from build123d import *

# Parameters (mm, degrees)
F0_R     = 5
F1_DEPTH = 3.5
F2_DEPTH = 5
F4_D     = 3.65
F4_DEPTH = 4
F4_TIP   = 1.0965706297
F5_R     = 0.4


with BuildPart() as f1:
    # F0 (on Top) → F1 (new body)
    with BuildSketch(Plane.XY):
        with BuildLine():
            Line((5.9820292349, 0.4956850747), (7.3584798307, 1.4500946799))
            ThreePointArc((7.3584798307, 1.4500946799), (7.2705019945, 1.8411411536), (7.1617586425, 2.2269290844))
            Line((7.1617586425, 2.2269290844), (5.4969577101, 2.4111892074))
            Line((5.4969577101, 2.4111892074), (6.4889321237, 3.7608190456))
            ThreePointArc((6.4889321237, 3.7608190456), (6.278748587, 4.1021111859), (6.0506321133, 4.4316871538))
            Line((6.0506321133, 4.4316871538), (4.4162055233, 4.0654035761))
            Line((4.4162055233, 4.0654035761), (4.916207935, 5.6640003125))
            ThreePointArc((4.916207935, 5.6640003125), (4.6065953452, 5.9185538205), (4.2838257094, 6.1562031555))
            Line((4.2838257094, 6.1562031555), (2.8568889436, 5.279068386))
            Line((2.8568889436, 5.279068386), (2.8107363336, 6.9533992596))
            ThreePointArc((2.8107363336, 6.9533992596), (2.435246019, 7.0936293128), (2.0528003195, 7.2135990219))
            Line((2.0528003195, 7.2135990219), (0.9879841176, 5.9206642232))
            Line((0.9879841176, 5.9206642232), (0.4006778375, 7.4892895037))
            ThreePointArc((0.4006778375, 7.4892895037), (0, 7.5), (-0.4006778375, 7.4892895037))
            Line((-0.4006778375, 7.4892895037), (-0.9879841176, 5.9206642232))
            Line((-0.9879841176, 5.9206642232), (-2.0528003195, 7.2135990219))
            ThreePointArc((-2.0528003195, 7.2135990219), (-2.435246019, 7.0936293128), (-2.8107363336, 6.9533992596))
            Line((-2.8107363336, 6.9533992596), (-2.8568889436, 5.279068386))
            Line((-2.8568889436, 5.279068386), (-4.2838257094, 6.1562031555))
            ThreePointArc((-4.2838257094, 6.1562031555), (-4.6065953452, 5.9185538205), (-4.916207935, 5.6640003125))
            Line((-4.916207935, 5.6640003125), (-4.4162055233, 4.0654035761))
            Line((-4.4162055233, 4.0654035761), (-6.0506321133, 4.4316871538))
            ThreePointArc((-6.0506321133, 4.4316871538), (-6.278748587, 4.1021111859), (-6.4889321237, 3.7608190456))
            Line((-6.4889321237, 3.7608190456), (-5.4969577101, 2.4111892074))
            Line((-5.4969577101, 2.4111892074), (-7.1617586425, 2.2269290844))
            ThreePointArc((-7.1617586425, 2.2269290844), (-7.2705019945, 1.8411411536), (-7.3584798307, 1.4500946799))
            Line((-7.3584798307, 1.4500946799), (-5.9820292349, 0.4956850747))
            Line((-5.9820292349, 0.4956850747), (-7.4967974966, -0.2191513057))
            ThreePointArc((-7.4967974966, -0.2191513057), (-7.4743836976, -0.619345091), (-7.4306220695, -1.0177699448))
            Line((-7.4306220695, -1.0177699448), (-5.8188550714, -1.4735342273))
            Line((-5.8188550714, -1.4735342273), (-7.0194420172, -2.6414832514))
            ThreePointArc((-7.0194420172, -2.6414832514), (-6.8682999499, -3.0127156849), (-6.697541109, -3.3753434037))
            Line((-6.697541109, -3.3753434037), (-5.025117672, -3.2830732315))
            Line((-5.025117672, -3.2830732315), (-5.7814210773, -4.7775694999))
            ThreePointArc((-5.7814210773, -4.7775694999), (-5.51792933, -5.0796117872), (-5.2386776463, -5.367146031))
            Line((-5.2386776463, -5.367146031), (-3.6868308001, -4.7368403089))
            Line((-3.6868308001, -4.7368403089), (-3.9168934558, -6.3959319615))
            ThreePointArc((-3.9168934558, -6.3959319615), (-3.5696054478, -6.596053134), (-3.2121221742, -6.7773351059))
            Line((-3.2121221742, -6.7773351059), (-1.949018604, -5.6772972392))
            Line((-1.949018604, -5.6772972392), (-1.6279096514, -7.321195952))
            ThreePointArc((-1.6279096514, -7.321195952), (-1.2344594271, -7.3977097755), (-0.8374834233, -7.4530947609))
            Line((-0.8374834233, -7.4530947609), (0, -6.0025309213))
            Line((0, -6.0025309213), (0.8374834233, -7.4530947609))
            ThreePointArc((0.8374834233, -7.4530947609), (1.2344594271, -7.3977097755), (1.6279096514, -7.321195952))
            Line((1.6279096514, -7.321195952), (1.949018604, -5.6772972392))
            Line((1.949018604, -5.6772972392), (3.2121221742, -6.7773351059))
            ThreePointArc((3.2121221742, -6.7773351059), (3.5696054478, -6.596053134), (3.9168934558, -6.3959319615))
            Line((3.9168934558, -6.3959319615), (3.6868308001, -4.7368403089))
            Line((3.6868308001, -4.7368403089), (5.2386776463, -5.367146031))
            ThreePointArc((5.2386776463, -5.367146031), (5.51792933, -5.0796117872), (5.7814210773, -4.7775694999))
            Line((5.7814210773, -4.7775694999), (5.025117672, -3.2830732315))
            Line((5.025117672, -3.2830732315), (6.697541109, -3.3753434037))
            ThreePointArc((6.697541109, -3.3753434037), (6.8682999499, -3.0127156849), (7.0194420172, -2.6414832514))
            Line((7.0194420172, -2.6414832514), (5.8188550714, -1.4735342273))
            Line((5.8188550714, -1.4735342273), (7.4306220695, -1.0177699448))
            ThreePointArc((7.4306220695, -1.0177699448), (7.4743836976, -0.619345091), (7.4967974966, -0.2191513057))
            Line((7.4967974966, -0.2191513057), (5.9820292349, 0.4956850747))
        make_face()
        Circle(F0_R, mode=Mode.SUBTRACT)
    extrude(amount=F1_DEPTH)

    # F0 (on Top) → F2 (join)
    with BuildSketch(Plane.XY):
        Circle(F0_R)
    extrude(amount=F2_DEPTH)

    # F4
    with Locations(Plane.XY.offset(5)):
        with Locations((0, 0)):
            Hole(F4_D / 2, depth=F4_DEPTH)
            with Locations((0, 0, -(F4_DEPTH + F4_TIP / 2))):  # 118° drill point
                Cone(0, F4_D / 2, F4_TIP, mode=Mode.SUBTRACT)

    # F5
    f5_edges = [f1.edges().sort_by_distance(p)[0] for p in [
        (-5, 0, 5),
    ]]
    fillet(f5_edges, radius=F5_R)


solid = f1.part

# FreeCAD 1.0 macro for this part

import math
import FreeCAD as App
import Part
import Sketcher

V = App.Vector
Q = App.Units.Quantity


def edges_at(feature, points):
    """Names of the edges that pass closest to the given points."""
    edges = feature.Shape.Edges
    near = lambda p: min(range(len(edges)), key=lambda i: edges[i].distToShape(Part.Vertex(*p))[0])
    return sorted({f"Edge{near(p) + 1}" for p in points})

doc = App.newDocument("Part")
body = doc.addObject("PartDesign::Body", "Body")

sketch1 = doc.addObject("Sketcher::SketchObject", "Sketch")
body.addObject(sketch1)
sketch1.AttachmentSupport = (doc.XY_Plane, [""])
sketch1.MapMode = "FlatFace"
sketch1.addGeometry(Part.LineSegment(V(5.982029, 0.495685, 0), V(7.35848, 1.450095, 0)), False)
sketch1.addGeometry(Part.ArcOfCircle(Part.Circle(V(0, 0, 0), V(0, 0, 1), 7.5), math.radians(11.148115), math.radians(17.272937)), False)
sketch1.addGeometry(Part.LineSegment(V(7.161759, 2.226929, 0), V(5.496958, 2.411189, 0)), False)
sketch1.addGeometry(Part.LineSegment(V(5.496958, 2.411189, 0), V(6.488932, 3.760819, 0)), False)
sketch1.addGeometry(Part.ArcOfCircle(Part.Circle(V(0, 0, 0), V(0, 0, 1), 7.5), math.radians(30.095484), math.radians(36.220306)), False)
sketch1.addGeometry(Part.LineSegment(V(6.050632, 4.431687, 0), V(4.416206, 4.065404, 0)), False)
sketch1.addGeometry(Part.LineSegment(V(4.416206, 4.065404, 0), V(4.916208, 5.664, 0)), False)
sketch1.addGeometry(Part.ArcOfCircle(Part.Circle(V(0, 0, 0), V(0, 0, 1), 7.5), math.radians(49.042852), math.radians(55.167674)), False)
sketch1.addGeometry(Part.LineSegment(V(4.283826, 6.156203, 0), V(2.856889, 5.279068, 0)), False)
sketch1.addGeometry(Part.LineSegment(V(2.856889, 5.279068, 0), V(2.810736, 6.953399, 0)), False)
sketch1.addGeometry(Part.ArcOfCircle(Part.Circle(V(0, 0, 0), V(0, 0, 1), 7.5), math.radians(67.99022), math.radians(74.115043)), False)
sketch1.addGeometry(Part.LineSegment(V(2.0528, 7.213599, 0), V(0.987984, 5.920664, 0)), False)
sketch1.addGeometry(Part.LineSegment(V(0.987984, 5.920664, 0), V(0.400678, 7.48929, 0)), False)
sketch1.addGeometry(Part.ArcOfCircle(Part.Circle(V(0, 0, 0), V(0, 0, 1), 7.5), math.radians(86.937589), math.radians(93.062411)), False)
sketch1.addGeometry(Part.LineSegment(V(-0.400678, 7.48929, 0), V(-0.987984, 5.920664, 0)), False)
sketch1.addGeometry(Part.LineSegment(V(-0.987984, 5.920664, 0), V(-2.0528, 7.213599, 0)), False)
sketch1.addGeometry(Part.ArcOfCircle(Part.Circle(V(0, 0, 0), V(0, 0, 1), 7.5), math.radians(105.884957), math.radians(112.00978)), False)
sketch1.addGeometry(Part.LineSegment(V(-2.810736, 6.953399, 0), V(-2.856889, 5.279068, 0)), False)
sketch1.addGeometry(Part.LineSegment(V(-2.856889, 5.279068, 0), V(-4.283826, 6.156203, 0)), False)
sketch1.addGeometry(Part.ArcOfCircle(Part.Circle(V(0, 0, 0), V(0, 0, 1), 7.5), math.radians(124.832326), math.radians(130.957148)), False)
sketch1.addGeometry(Part.LineSegment(V(-4.916208, 5.664, 0), V(-4.416206, 4.065404, 0)), False)
sketch1.addGeometry(Part.LineSegment(V(-4.416206, 4.065404, 0), V(-6.050632, 4.431687, 0)), False)
sketch1.addGeometry(Part.ArcOfCircle(Part.Circle(V(0, 0, 0), V(0, 0, 1), 7.5), math.radians(143.779694), math.radians(149.904516)), False)
sketch1.addGeometry(Part.LineSegment(V(-6.488932, 3.760819, 0), V(-5.496958, 2.411189, 0)), False)
sketch1.addGeometry(Part.LineSegment(V(-5.496958, 2.411189, 0), V(-7.161759, 2.226929, 0)), False)
sketch1.addGeometry(Part.ArcOfCircle(Part.Circle(V(0, 0, 0), V(0, 0, 1), 7.5), math.radians(162.727063), math.radians(168.851885)), False)
sketch1.addGeometry(Part.LineSegment(V(-7.35848, 1.450095, 0), V(-5.982029, 0.495685, 0)), False)
sketch1.addGeometry(Part.LineSegment(V(-5.982029, 0.495685, 0), V(-7.496797, -0.219151, 0)), False)
sketch1.addGeometry(Part.ArcOfCircle(Part.Circle(V(0, 0, 0), V(0, 0, 1), 7.5), math.radians(-178.325569), math.radians(-172.200747)), False)
sketch1.addGeometry(Part.LineSegment(V(-7.430622, -1.01777, 0), V(-5.818855, -1.473534, 0)), False)
sketch1.addGeometry(Part.LineSegment(V(-5.818855, -1.473534, 0), V(-7.019442, -2.641483, 0)), False)
sketch1.addGeometry(Part.ArcOfCircle(Part.Circle(V(0, 0, 0), V(0, 0, 1), 7.5), math.radians(-159.378201), math.radians(-153.253378)), False)
sketch1.addGeometry(Part.LineSegment(V(-6.697541, -3.375343, 0), V(-5.025118, -3.283073, 0)), False)
sketch1.addGeometry(Part.LineSegment(V(-5.025118, -3.283073, 0), V(-5.781421, -4.77757, 0)), False)
sketch1.addGeometry(Part.ArcOfCircle(Part.Circle(V(0, 0, 0), V(0, 0, 1), 7.5), math.radians(-140.430832), math.radians(-134.30601)), False)
sketch1.addGeometry(Part.LineSegment(V(-5.238678, -5.367146, 0), V(-3.686831, -4.73684, 0)), False)
sketch1.addGeometry(Part.LineSegment(V(-3.686831, -4.73684, 0), V(-3.916893, -6.395932, 0)), False)
sketch1.addGeometry(Part.ArcOfCircle(Part.Circle(V(0, 0, 0), V(0, 0, 1), 7.5), math.radians(-121.483464), math.radians(-115.358642)), False)
sketch1.addGeometry(Part.LineSegment(V(-3.212122, -6.777335, 0), V(-1.949019, -5.677297, 0)), False)
sketch1.addGeometry(Part.LineSegment(V(-1.949019, -5.677297, 0), V(-1.62791, -7.321196, 0)), False)
sketch1.addGeometry(Part.ArcOfCircle(Part.Circle(V(0, 0, 0), V(0, 0, 1), 7.5), math.radians(-102.536095), math.radians(-96.411273)), False)
sketch1.addGeometry(Part.LineSegment(V(-0.837483, -7.453095, 0), V(0, -6.002531, 0)), False)
sketch1.addGeometry(Part.LineSegment(V(0, -6.002531, 0), V(0.837483, -7.453095, 0)), False)
sketch1.addGeometry(Part.ArcOfCircle(Part.Circle(V(0, 0, 0), V(0, 0, 1), 7.5), math.radians(-83.588727), math.radians(-77.463905)), False)
sketch1.addGeometry(Part.LineSegment(V(1.62791, -7.321196, 0), V(1.949019, -5.677297, 0)), False)
sketch1.addGeometry(Part.LineSegment(V(1.949019, -5.677297, 0), V(3.212122, -6.777335, 0)), False)
sketch1.addGeometry(Part.ArcOfCircle(Part.Circle(V(0, 0, 0), V(0, 0, 1), 7.5), math.radians(-64.641358), math.radians(-58.516536)), False)
sketch1.addGeometry(Part.LineSegment(V(3.916893, -6.395932, 0), V(3.686831, -4.73684, 0)), False)
sketch1.addGeometry(Part.LineSegment(V(3.686831, -4.73684, 0), V(5.238678, -5.367146, 0)), False)
sketch1.addGeometry(Part.ArcOfCircle(Part.Circle(V(0, 0, 0), V(0, 0, 1), 7.5), math.radians(-45.69399), math.radians(-39.569168)), False)
sketch1.addGeometry(Part.LineSegment(V(5.781421, -4.77757, 0), V(5.025118, -3.283073, 0)), False)
sketch1.addGeometry(Part.LineSegment(V(5.025118, -3.283073, 0), V(6.697541, -3.375343, 0)), False)
sketch1.addGeometry(Part.ArcOfCircle(Part.Circle(V(0, 0, 0), V(0, 0, 1), 7.5), math.radians(-26.746622), math.radians(-20.621799)), False)
sketch1.addGeometry(Part.LineSegment(V(7.019442, -2.641483, 0), V(5.818855, -1.473534, 0)), False)
sketch1.addGeometry(Part.LineSegment(V(5.818855, -1.473534, 0), V(7.430622, -1.01777, 0)), False)
sketch1.addGeometry(Part.ArcOfCircle(Part.Circle(V(0, 0, 0), V(0, 0, 1), 7.5), math.radians(-7.799253), math.radians(-1.674431)), False)
sketch1.addGeometry(Part.LineSegment(V(7.496797, -0.219151, 0), V(5.982029, 0.495685, 0)), False)
sketch1.addGeometry(Part.Circle(V(0, 0, 0), V(0, 0, 1), 5), False)
sketch1.addConstraint(Sketcher.Constraint("Coincident", 0, 2, 1, 1))
sketch1.addConstraint(Sketcher.Constraint("Coincident", 1, 2, 2, 1))
sketch1.addConstraint(Sketcher.Constraint("Coincident", 2, 2, 3, 1))
sketch1.addConstraint(Sketcher.Constraint("Coincident", 3, 2, 4, 1))
sketch1.addConstraint(Sketcher.Constraint("Coincident", 4, 2, 5, 1))
sketch1.addConstraint(Sketcher.Constraint("Coincident", 5, 2, 6, 1))
sketch1.addConstraint(Sketcher.Constraint("Coincident", 6, 2, 7, 1))
sketch1.addConstraint(Sketcher.Constraint("Coincident", 7, 2, 8, 1))
sketch1.addConstraint(Sketcher.Constraint("Coincident", 8, 2, 9, 1))
sketch1.addConstraint(Sketcher.Constraint("Coincident", 9, 2, 10, 1))
sketch1.addConstraint(Sketcher.Constraint("Coincident", 10, 2, 11, 1))
sketch1.addConstraint(Sketcher.Constraint("Coincident", 11, 2, 12, 1))
sketch1.addConstraint(Sketcher.Constraint("Coincident", 12, 2, 13, 1))
sketch1.addConstraint(Sketcher.Constraint("Coincident", 13, 2, 14, 1))
sketch1.addConstraint(Sketcher.Constraint("Coincident", 14, 2, 15, 1))
sketch1.addConstraint(Sketcher.Constraint("Coincident", 15, 2, 16, 1))
sketch1.addConstraint(Sketcher.Constraint("Coincident", 16, 2, 17, 1))
sketch1.addConstraint(Sketcher.Constraint("Coincident", 17, 2, 18, 1))
sketch1.addConstraint(Sketcher.Constraint("Coincident", 18, 2, 19, 1))
sketch1.addConstraint(Sketcher.Constraint("Coincident", 19, 2, 20, 1))
sketch1.addConstraint(Sketcher.Constraint("Coincident", 20, 2, 21, 1))
sketch1.addConstraint(Sketcher.Constraint("Coincident", 21, 2, 22, 1))
sketch1.addConstraint(Sketcher.Constraint("Coincident", 22, 2, 23, 1))
sketch1.addConstraint(Sketcher.Constraint("Coincident", 23, 2, 24, 1))
sketch1.addConstraint(Sketcher.Constraint("Coincident", 24, 2, 25, 1))
sketch1.addConstraint(Sketcher.Constraint("Coincident", 25, 2, 26, 1))
sketch1.addConstraint(Sketcher.Constraint("Coincident", 26, 2, 27, 1))
sketch1.addConstraint(Sketcher.Constraint("Coincident", 27, 2, 28, 1))
sketch1.addConstraint(Sketcher.Constraint("Coincident", 28, 2, 29, 1))
sketch1.addConstraint(Sketcher.Constraint("Coincident", 29, 2, 30, 1))
sketch1.addConstraint(Sketcher.Constraint("Coincident", 30, 2, 31, 1))
sketch1.addConstraint(Sketcher.Constraint("Coincident", 31, 2, 32, 1))
sketch1.addConstraint(Sketcher.Constraint("Coincident", 32, 2, 33, 1))
sketch1.addConstraint(Sketcher.Constraint("Coincident", 33, 2, 34, 1))
sketch1.addConstraint(Sketcher.Constraint("Coincident", 34, 2, 35, 1))
sketch1.addConstraint(Sketcher.Constraint("Coincident", 35, 2, 36, 1))
sketch1.addConstraint(Sketcher.Constraint("Coincident", 36, 2, 37, 1))
sketch1.addConstraint(Sketcher.Constraint("Coincident", 37, 2, 38, 1))
sketch1.addConstraint(Sketcher.Constraint("Coincident", 38, 2, 39, 1))
sketch1.addConstraint(Sketcher.Constraint("Coincident", 39, 2, 40, 1))
sketch1.addConstraint(Sketcher.Constraint("Coincident", 40, 2, 41, 1))
sketch1.addConstraint(Sketcher.Constraint("Coincident", 41, 2, 42, 1))
sketch1.addConstraint(Sketcher.Constraint("Coincident", 42, 2, 43, 1))
sketch1.addConstraint(Sketcher.Constraint("Coincident", 43, 2, 44, 1))
sketch1.addConstraint(Sketcher.Constraint("Coincident", 44, 2, 45, 1))
sketch1.addConstraint(Sketcher.Constraint("Coincident", 45, 2, 46, 1))
sketch1.addConstraint(Sketcher.Constraint("Coincident", 46, 2, 47, 1))
sketch1.addConstraint(Sketcher.Constraint("Coincident", 47, 2, 48, 1))
sketch1.addConstraint(Sketcher.Constraint("Coincident", 48, 2, 49, 1))
sketch1.addConstraint(Sketcher.Constraint("Coincident", 49, 2, 50, 1))
sketch1.addConstraint(Sketcher.Constraint("Coincident", 50, 2, 51, 1))
sketch1.addConstraint(Sketcher.Constraint("Coincident", 51, 2, 52, 1))
sketch1.addConstraint(Sketcher.Constraint("Coincident", 52, 2, 53, 1))
sketch1.addConstraint(Sketcher.Constraint("Coincident", 53, 2, 54, 1))
sketch1.addConstraint(Sketcher.Constraint("Coincident", 54, 2, 55, 1))
sketch1.addConstraint(Sketcher.Constraint("Coincident", 55, 2, 56, 1))
sketch1.addConstraint(Sketcher.Constraint("Coincident", 56, 2, 0, 1))
sketch1.addConstraint(Sketcher.Constraint("Coincident", 1, 3, -1, 1))
sketch1.addConstraint(Sketcher.Constraint("Coincident", 4, 3, -1, 1))
sketch1.addConstraint(Sketcher.Constraint("Coincident", 7, 3, -1, 1))
sketch1.addConstraint(Sketcher.Constraint("Coincident", 10, 3, -1, 1))
sketch1.addConstraint(Sketcher.Constraint("Coincident", 13, 3, -1, 1))
sketch1.addConstraint(Sketcher.Constraint("Coincident", 16, 3, -1, 1))
sketch1.addConstraint(Sketcher.Constraint("Coincident", 19, 3, -1, 1))
sketch1.addConstraint(Sketcher.Constraint("Coincident", 22, 3, -1, 1))
sketch1.addConstraint(Sketcher.Constraint("Coincident", 25, 3, -1, 1))
sketch1.addConstraint(Sketcher.Constraint("Coincident", 28, 3, -1, 1))
sketch1.addConstraint(Sketcher.Constraint("Coincident", 31, 3, -1, 1))
sketch1.addConstraint(Sketcher.Constraint("Coincident", 34, 3, -1, 1))
sketch1.addConstraint(Sketcher.Constraint("Coincident", 37, 3, -1, 1))
sketch1.addConstraint(Sketcher.Constraint("Coincident", 40, 3, -1, 1))
sketch1.addConstraint(Sketcher.Constraint("Coincident", 43, 3, -1, 1))
sketch1.addConstraint(Sketcher.Constraint("Coincident", 46, 3, -1, 1))
sketch1.addConstraint(Sketcher.Constraint("Coincident", 49, 3, -1, 1))
sketch1.addConstraint(Sketcher.Constraint("Coincident", 52, 3, -1, 1))
sketch1.addConstraint(Sketcher.Constraint("Coincident", 55, 3, -1, 1))
sketch1.addConstraint(Sketcher.Constraint("Coincident", 57, 3, -1, 1))
sketch1.addConstraint(Sketcher.Constraint("Equal", 1, 4))
sketch1.addConstraint(Sketcher.Constraint("Equal", 4, 7))
sketch1.addConstraint(Sketcher.Constraint("Equal", 7, 10))
sketch1.addConstraint(Sketcher.Constraint("Equal", 10, 13))
sketch1.addConstraint(Sketcher.Constraint("Equal", 13, 16))
sketch1.addConstraint(Sketcher.Constraint("Equal", 16, 19))
sketch1.addConstraint(Sketcher.Constraint("Equal", 19, 22))
sketch1.addConstraint(Sketcher.Constraint("Equal", 22, 25))
sketch1.addConstraint(Sketcher.Constraint("Equal", 25, 28))
sketch1.addConstraint(Sketcher.Constraint("Equal", 28, 31))
sketch1.addConstraint(Sketcher.Constraint("Equal", 31, 34))
sketch1.addConstraint(Sketcher.Constraint("Equal", 34, 37))
sketch1.addConstraint(Sketcher.Constraint("Equal", 37, 40))
sketch1.addConstraint(Sketcher.Constraint("Equal", 40, 43))
sketch1.addConstraint(Sketcher.Constraint("Equal", 43, 46))
sketch1.addConstraint(Sketcher.Constraint("Equal", 46, 49))
sketch1.addConstraint(Sketcher.Constraint("Equal", 49, 52))
sketch1.addConstraint(Sketcher.Constraint("Equal", 52, 55))
sketch1.addConstraint(Sketcher.Constraint("Symmetric", 11, 2, 14, 2, -2))
sketch1.addConstraint(Sketcher.Constraint("Symmetric", 8, 2, 17, 2, -2))
sketch1.addConstraint(Sketcher.Constraint("Symmetric", 5, 2, 20, 2, -2))
sketch1.addConstraint(Sketcher.Constraint("Symmetric", 2, 2, 23, 2, -2))
sketch1.addConstraint(Sketcher.Constraint("Symmetric", 38, 2, 44, 2, -2))
sketch1.addConstraint(Sketcher.Constraint("Symmetric", 35, 2, 47, 2, -2))
sketch1.addConstraint(Sketcher.Constraint("Symmetric", 32, 2, 50, 2, -2))
sketch1.addConstraint(Sketcher.Constraint("Symmetric", 29, 2, 53, 2, -2))
sketch1.addConstraint(Sketcher.Constraint("Symmetric", 26, 2, 56, 2, -2))
sketch1.addConstraint(Sketcher.Constraint("PointOnObject", 41, 2, -2))
sketch1.addConstraint(Sketcher.Constraint("Horizontal", 12, 2, 13, 2))
sketch1.addConstraint(Sketcher.Constraint("Horizontal", 10, 2, 15, 2))
sketch1.addConstraint(Sketcher.Constraint("Horizontal", 9, 2, 16, 2))
sketch1.addConstraint(Sketcher.Constraint("Horizontal", 7, 2, 18, 2))
sketch1.addConstraint(Sketcher.Constraint("Horizontal", 6, 2, 19, 2))
sketch1.addConstraint(Sketcher.Constraint("Horizontal", 4, 2, 21, 2))
sketch1.addConstraint(Sketcher.Constraint("Horizontal", 3, 2, 22, 2))
sketch1.addConstraint(Sketcher.Constraint("Horizontal", 1, 2, 24, 2))
sketch1.addConstraint(Sketcher.Constraint("Horizontal", 0, 2, 25, 2))
sketch1.addConstraint(Sketcher.Constraint("Horizontal", 40, 2, 42, 2))
sketch1.addConstraint(Sketcher.Constraint("Horizontal", 39, 2, 43, 2))
sketch1.addConstraint(Sketcher.Constraint("Horizontal", 37, 2, 45, 2))
sketch1.addConstraint(Sketcher.Constraint("Horizontal", 36, 2, 46, 2))
sketch1.addConstraint(Sketcher.Constraint("Horizontal", 34, 2, 48, 2))
sketch1.addConstraint(Sketcher.Constraint("Horizontal", 33, 2, 49, 2))
sketch1.addConstraint(Sketcher.Constraint("Horizontal", 31, 2, 51, 2))
sketch1.addConstraint(Sketcher.Constraint("Horizontal", 30, 2, 52, 2))
sketch1.addConstraint(Sketcher.Constraint("Horizontal", 28, 2, 54, 2))
sketch1.addConstraint(Sketcher.Constraint("Horizontal", 27, 2, 55, 2))
sketch1.addConstraint(Sketcher.Constraint("Equal", 0, 2))
sketch1.addConstraint(Sketcher.Constraint("Equal", 2, 3))
sketch1.addConstraint(Sketcher.Constraint("Equal", 3, 5))
sketch1.addConstraint(Sketcher.Constraint("Equal", 5, 6))
sketch1.addConstraint(Sketcher.Constraint("Equal", 6, 8))
sketch1.addConstraint(Sketcher.Constraint("Equal", 8, 9))
sketch1.addConstraint(Sketcher.Constraint("Equal", 9, 11))
sketch1.addConstraint(Sketcher.Constraint("Equal", 11, 12))
sketch1.addConstraint(Sketcher.Constraint("Equal", 26, 27))
sketch1.addConstraint(Sketcher.Constraint("Equal", 27, 29))
sketch1.addConstraint(Sketcher.Constraint("Equal", 29, 30))
sketch1.addConstraint(Sketcher.Constraint("Equal", 30, 32))
sketch1.addConstraint(Sketcher.Constraint("Equal", 32, 33))
sketch1.addConstraint(Sketcher.Constraint("Equal", 33, 35))
sketch1.addConstraint(Sketcher.Constraint("Equal", 35, 36))
sketch1.addConstraint(Sketcher.Constraint("Equal", 36, 38))
sketch1.addConstraint(Sketcher.Constraint("Equal", 38, 39))
sketch1.addConstraint(Sketcher.Constraint("Equal", 39, 41))
sketch1.addConstraint(Sketcher.Constraint("Diameter", 57, 10.0))
sketch1.addConstraint(Sketcher.Constraint("Radius", 1, 7.5))
sketch1.addConstraint(Sketcher.Constraint("Angle", 41, Q("60 deg")))
sketch1.addConstraint(Sketcher.Constraint("DistanceY", -1, 1, 6, 2, 5.664))
sketch1.addConstraint(Sketcher.Constraint("DistanceY", -1, 1, 9, 2, 6.953399))
sketch1.addConstraint(Sketcher.Constraint("DistanceX", -1, 1, 10, 2, 2.0528))
sketch1.addConstraint(Sketcher.Constraint("DistanceX", -1, 1, 0, 2, 7.35848))
sketch1.addConstraint(Sketcher.Constraint("DistanceX", -1, 1, 1, 2, 7.161759))
sketch1.addConstraint(Sketcher.Constraint("DistanceY", -1, 1, 2, 2, 2.411189))
sketch1.addConstraint(Sketcher.Constraint("DistanceY", -1, 1, 3, 2, 3.760819))
sketch1.addConstraint(Sketcher.Constraint("DistanceX", -1, 1, 8, 2, 2.856889))
sketch1.addConstraint(Sketcher.Constraint("DistanceY", -1, 1, 12, 2, 7.48929))
sketch1.addConstraint(Sketcher.Constraint("DistanceX", 26, 2, -1, 1, 5.982029))
sketch1.addConstraint(Sketcher.Constraint("DistanceY", 28, 2, -1, 1, 1.01777))
sketch1.addConstraint(Sketcher.Constraint("DistanceX", 31, 2, -1, 1, 6.697541))
sketch1.addConstraint(Sketcher.Constraint("DistanceX", 33, 2, -1, 1, 5.781421))
sketch1.addConstraint(Sketcher.Constraint("DistanceX", 35, 2, -1, 1, 3.686831))
sketch1.addConstraint(Sketcher.Constraint("DistanceY", 35, 2, -1, 1, 4.73684))
sketch1.addConstraint(Sketcher.Constraint("DistanceX", 38, 2, -1, 1, 1.949019))
sketch1.addConstraint(Sketcher.Constraint("DistanceX", 39, 2, -1, 1, 1.62791))
sketch1.addConstraint(Sketcher.Constraint("DistanceX", -1, 1, 4, 2, 6.050632))
sketch1.addConstraint(Sketcher.Constraint("DistanceX", 29, 2, -1, 1, 5.818855))
pad1 = doc.addObject("PartDesign::Pad", "Pad")
body.addObject(pad1)
pad1.Profile = sketch1
pad1.Length = 3.5

sketch2 = doc.addObject("Sketcher::SketchObject", "Sketch001")
body.addObject(sketch2)
sketch2.AttachmentSupport = (doc.XY_Plane, [""])
sketch2.MapMode = "FlatFace"
sketch2.addGeometry(Part.Circle(V(0, 0, 0), V(0, 0, 1), 5), False)
sketch2.addConstraint(Sketcher.Constraint("Coincident", 0, 3, -1, 1))
sketch2.addConstraint(Sketcher.Constraint("Diameter", 0, 10.0))
pad2 = doc.addObject("PartDesign::Pad", "Pad001")
body.addObject(pad2)
pad2.Profile = sketch2
pad2.Length = 5

sketch3 = doc.addObject("Sketcher::SketchObject", "Sketch002")
body.addObject(sketch3)
sketch3.AttachmentSupport = (doc.XY_Plane, [""])
sketch3.MapMode = "FlatFace"
sketch3.AttachmentOffset = App.Placement(V(0, 0, 5), App.Rotation())
sketch3.addGeometry(Part.Circle(V(0, 0, 0), V(0, 0, 1), 1.825), False)
sketch3.addConstraint(Sketcher.Constraint("Coincident", 0, 3, -1, 1))
sketch3.addConstraint(Sketcher.Constraint("Diameter", 0, 3.65))
doc.recompute()
hole = doc.addObject("PartDesign::Hole", "Hole")
body.addObject(hole)
hole.Profile = sketch3
hole.ThreadType = "None"
hole.Diameter = 3.65
hole.DepthType = "Dimension"
hole.Depth = 4
hole.DrillPoint = "Angled"
hole.DrillPointAngle = 118
doc.recompute()

fillet = doc.addObject("PartDesign::Fillet", "Fillet")
body.addObject(fillet)
fillet.Base = (hole, edges_at(hole, [(-5, 0, 5)]))
fillet.Radius = 0.4

doc.recompute()
